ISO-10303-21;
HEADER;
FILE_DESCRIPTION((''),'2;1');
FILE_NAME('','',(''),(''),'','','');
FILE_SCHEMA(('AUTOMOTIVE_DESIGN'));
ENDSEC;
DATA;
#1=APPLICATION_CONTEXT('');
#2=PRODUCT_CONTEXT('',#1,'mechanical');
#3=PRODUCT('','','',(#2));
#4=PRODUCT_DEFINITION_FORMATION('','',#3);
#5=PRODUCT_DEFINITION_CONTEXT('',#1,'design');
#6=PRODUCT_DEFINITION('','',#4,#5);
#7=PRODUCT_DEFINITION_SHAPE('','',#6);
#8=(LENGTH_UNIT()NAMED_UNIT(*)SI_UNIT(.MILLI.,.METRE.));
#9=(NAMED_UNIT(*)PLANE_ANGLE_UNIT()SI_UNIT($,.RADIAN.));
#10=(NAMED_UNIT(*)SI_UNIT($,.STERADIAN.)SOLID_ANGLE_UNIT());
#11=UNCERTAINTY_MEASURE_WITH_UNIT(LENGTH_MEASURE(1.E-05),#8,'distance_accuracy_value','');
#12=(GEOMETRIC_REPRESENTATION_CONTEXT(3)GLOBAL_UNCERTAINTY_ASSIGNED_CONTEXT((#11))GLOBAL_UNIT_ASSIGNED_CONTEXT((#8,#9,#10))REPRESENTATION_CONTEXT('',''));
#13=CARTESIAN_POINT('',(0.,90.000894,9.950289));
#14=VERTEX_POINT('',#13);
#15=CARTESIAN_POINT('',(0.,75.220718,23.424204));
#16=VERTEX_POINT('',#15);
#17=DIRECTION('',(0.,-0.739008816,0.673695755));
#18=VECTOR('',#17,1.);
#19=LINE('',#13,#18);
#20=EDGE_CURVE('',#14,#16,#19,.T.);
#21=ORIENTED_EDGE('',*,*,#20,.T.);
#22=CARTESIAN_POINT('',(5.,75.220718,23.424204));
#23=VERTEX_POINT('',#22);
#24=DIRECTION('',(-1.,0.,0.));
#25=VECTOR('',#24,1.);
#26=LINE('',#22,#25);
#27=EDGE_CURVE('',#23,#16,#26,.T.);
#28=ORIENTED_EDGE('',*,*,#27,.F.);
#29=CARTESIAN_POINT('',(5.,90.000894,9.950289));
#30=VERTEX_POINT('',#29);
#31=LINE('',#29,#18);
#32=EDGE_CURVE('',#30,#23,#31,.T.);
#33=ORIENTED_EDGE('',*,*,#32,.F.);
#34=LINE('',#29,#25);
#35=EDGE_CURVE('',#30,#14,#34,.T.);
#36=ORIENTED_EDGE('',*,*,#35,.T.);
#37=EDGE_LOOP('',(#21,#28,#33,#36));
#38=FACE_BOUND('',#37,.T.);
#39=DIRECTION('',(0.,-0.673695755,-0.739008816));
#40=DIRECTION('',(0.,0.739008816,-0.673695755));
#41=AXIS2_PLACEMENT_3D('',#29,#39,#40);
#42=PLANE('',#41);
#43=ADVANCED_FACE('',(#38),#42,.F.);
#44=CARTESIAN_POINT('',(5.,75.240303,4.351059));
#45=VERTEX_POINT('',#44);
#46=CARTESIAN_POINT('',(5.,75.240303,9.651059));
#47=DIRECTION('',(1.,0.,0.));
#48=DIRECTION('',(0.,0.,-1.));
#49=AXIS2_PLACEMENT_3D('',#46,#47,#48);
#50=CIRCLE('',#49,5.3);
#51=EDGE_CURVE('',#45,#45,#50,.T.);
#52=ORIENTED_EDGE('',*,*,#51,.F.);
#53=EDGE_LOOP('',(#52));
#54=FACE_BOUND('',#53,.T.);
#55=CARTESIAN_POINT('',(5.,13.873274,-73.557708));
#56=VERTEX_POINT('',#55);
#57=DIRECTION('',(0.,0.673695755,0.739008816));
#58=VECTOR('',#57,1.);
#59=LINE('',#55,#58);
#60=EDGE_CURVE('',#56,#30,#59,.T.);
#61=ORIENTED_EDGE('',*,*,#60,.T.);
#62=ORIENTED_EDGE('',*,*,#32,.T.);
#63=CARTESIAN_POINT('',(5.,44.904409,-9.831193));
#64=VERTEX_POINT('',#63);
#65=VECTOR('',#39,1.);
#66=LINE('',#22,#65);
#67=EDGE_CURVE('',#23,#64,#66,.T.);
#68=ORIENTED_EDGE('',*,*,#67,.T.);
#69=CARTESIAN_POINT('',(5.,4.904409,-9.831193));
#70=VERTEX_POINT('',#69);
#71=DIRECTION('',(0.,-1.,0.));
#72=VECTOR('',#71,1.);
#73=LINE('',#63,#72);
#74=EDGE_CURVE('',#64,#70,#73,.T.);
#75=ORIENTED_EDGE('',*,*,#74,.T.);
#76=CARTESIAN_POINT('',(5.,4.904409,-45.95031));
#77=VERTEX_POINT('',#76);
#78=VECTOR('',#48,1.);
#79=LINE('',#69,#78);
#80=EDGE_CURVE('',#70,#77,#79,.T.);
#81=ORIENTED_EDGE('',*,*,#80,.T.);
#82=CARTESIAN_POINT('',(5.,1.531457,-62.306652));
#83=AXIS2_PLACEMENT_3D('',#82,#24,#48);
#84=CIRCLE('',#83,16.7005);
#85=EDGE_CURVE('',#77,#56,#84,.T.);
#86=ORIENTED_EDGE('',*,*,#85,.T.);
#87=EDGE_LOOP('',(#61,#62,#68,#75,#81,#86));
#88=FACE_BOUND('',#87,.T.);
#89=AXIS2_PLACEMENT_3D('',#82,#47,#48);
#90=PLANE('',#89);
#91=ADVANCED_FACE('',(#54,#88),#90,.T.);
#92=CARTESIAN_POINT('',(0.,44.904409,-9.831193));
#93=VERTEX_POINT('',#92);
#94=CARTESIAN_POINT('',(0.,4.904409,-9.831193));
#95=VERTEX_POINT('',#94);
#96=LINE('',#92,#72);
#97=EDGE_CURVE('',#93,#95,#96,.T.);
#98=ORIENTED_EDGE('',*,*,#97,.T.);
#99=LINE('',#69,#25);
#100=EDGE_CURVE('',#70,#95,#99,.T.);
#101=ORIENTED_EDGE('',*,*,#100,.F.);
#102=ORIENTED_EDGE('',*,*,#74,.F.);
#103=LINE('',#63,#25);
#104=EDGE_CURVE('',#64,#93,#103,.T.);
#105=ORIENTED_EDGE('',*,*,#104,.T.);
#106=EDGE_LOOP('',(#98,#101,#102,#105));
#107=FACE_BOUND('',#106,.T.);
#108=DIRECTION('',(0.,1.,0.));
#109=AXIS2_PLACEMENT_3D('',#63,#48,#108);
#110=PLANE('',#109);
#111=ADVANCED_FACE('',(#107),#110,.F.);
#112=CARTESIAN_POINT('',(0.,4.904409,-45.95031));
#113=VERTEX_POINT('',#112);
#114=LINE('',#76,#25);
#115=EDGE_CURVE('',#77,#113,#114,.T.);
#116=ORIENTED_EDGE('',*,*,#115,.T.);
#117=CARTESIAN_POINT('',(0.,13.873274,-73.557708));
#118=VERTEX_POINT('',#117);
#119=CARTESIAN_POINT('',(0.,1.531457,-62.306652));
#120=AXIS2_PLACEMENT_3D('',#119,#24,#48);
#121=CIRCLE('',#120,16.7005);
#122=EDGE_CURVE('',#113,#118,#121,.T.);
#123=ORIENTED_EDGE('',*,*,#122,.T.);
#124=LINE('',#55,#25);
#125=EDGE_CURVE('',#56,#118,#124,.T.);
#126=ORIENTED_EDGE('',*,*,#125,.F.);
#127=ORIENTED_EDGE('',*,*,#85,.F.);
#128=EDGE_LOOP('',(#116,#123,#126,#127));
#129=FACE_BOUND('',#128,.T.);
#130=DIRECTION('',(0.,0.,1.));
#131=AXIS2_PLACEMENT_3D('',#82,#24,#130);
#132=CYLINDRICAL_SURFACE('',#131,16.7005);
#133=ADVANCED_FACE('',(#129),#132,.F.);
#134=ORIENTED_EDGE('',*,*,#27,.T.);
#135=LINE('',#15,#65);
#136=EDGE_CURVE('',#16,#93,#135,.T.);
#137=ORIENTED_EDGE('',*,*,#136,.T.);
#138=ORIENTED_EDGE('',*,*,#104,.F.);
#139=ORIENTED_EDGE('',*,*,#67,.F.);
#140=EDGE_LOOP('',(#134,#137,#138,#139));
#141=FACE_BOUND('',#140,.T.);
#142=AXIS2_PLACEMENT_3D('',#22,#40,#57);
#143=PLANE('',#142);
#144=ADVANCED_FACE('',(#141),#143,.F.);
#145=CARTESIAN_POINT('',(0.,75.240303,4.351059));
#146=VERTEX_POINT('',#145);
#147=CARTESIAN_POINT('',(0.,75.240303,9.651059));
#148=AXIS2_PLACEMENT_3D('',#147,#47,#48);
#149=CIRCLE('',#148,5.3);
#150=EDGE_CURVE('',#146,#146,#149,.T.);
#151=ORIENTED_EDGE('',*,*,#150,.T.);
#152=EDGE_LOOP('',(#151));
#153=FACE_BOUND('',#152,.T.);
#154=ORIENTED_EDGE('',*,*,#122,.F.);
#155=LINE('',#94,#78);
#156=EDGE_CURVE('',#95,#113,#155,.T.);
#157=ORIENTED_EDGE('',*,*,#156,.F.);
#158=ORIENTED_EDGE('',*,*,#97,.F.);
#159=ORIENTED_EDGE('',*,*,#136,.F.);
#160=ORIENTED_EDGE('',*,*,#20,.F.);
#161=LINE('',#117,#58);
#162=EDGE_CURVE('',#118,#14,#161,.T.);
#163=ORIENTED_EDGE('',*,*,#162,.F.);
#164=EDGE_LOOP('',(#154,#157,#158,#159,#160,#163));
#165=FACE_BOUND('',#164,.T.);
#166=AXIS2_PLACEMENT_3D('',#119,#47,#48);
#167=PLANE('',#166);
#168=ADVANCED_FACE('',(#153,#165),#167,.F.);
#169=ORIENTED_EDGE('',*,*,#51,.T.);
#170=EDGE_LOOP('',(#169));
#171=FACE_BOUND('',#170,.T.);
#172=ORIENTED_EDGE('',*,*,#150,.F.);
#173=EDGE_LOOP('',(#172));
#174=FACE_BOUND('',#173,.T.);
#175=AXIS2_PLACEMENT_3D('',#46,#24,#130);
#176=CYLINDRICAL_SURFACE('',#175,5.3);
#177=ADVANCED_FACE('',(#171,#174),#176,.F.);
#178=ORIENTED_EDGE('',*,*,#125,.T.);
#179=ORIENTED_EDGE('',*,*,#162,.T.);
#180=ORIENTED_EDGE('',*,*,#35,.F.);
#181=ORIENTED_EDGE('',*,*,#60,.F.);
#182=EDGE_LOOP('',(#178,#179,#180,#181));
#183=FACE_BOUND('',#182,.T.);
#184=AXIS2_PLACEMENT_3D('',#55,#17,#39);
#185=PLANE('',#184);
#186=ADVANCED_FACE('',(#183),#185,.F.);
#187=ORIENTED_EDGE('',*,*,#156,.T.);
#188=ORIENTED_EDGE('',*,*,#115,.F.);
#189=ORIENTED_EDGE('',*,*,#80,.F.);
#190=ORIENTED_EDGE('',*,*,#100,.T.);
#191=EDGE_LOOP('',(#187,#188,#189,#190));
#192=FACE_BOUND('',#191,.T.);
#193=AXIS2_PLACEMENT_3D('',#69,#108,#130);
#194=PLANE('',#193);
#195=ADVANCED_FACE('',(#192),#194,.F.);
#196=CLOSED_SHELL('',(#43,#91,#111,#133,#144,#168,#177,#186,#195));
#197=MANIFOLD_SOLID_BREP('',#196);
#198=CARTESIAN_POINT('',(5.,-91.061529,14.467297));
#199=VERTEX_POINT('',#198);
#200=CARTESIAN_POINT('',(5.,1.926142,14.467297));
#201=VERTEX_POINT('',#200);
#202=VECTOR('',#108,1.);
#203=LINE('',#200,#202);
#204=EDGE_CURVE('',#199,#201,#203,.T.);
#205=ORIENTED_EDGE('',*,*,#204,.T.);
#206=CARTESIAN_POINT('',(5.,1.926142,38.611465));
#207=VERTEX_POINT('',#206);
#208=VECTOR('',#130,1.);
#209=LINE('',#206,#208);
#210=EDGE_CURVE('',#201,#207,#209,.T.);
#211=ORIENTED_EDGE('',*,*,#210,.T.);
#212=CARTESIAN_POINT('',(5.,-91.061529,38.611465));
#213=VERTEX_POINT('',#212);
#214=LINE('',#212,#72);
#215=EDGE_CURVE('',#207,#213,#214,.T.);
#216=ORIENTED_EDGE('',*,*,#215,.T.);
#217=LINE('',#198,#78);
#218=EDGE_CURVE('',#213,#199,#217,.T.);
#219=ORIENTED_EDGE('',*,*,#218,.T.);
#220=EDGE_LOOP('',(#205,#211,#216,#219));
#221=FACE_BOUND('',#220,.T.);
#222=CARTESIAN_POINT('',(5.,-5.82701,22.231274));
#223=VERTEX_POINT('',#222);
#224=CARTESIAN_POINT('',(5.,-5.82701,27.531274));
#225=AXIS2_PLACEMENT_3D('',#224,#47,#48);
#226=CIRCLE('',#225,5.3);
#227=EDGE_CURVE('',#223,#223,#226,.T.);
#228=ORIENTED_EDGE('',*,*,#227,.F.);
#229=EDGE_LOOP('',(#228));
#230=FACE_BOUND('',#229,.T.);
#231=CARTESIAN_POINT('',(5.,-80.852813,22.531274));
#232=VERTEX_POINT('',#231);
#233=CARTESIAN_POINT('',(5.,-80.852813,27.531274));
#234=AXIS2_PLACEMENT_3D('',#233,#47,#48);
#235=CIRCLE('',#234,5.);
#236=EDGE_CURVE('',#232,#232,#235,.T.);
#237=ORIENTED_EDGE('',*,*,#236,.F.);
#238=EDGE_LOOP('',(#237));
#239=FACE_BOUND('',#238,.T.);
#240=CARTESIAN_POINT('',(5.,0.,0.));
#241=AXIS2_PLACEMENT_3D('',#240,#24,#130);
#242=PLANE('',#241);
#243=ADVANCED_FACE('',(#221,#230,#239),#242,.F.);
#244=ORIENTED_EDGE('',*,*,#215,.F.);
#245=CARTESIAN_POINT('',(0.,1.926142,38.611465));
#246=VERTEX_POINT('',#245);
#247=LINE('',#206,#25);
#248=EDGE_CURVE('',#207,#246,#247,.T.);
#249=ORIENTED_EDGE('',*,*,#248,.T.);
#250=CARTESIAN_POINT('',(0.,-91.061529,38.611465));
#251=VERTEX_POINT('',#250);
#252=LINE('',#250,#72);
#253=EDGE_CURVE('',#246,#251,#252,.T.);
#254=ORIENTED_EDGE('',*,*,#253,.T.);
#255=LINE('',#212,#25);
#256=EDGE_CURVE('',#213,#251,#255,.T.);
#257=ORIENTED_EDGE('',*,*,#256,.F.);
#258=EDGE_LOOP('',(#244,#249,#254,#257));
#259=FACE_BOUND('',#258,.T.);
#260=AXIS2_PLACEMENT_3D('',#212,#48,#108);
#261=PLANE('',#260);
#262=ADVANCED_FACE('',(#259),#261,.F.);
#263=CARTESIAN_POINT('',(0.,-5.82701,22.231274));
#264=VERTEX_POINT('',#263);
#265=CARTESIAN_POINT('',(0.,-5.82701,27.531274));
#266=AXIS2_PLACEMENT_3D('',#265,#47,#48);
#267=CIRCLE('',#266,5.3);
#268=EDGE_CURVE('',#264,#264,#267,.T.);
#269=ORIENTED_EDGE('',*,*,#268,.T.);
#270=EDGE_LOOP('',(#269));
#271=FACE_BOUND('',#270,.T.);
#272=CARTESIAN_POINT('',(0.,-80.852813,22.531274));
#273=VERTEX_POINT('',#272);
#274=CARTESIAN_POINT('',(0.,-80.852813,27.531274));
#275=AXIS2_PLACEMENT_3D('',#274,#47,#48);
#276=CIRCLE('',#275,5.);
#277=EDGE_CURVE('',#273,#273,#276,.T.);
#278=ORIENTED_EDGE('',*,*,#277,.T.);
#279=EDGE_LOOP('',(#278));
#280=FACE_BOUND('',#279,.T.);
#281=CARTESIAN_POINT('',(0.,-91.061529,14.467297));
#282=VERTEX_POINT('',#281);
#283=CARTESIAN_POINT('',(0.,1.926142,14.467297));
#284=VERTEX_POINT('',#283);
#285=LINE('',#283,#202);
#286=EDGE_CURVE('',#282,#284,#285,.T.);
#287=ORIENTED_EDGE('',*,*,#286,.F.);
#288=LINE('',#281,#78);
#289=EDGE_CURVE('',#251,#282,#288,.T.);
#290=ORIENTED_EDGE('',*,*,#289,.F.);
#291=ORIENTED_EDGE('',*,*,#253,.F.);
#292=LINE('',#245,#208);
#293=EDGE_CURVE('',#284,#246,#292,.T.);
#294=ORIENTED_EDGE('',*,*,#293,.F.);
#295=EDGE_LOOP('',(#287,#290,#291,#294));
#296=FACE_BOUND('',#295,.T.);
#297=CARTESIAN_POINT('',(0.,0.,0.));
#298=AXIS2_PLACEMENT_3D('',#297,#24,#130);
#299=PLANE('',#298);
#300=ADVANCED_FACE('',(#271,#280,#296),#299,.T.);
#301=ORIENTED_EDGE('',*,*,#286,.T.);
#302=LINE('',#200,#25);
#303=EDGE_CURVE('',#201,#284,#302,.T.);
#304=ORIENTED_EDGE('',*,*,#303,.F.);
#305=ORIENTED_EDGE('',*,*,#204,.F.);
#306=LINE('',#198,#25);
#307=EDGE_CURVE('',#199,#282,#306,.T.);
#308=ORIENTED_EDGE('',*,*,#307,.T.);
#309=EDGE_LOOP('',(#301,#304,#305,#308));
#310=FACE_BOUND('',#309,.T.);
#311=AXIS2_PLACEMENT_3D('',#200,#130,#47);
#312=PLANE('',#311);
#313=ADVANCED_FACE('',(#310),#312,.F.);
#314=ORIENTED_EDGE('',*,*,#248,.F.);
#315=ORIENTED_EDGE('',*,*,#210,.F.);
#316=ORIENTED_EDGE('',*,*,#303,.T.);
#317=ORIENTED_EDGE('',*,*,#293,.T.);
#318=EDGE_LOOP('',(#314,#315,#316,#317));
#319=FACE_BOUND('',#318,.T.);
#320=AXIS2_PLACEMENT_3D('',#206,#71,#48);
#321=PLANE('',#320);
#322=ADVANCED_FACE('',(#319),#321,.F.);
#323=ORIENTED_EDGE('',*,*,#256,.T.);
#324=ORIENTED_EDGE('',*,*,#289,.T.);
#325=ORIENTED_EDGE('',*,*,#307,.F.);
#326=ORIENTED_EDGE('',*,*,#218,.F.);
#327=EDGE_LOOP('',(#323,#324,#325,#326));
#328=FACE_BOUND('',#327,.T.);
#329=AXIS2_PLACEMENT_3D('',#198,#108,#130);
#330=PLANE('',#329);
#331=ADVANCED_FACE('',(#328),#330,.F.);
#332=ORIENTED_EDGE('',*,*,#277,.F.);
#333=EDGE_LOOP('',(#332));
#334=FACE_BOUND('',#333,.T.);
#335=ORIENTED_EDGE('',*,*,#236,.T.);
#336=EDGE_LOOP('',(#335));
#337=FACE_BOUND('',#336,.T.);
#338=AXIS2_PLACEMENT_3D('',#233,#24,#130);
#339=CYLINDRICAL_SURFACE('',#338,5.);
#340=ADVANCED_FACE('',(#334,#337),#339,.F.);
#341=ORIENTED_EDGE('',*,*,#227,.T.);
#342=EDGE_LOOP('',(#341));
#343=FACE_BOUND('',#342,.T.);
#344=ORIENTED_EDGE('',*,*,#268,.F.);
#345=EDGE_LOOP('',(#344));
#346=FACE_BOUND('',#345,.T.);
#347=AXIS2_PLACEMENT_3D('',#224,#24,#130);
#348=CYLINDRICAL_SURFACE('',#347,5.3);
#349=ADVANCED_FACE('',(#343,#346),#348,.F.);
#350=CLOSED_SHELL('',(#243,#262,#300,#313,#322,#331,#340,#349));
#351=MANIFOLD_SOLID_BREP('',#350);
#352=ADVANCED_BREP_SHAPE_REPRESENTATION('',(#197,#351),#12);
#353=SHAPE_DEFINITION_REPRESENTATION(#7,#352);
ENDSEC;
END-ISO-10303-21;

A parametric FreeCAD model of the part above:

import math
import FreeCAD as App
import Part
import Sketcher
from FreeCAD import Vector
Q = App.Units.Quantity


def add_polygon(sketch, points):
    """Adds a closed chain of lines whose ends are joined by coincident constraints."""
    first, n = sketch.GeometryCount, len(points)
    for a, b in zip(points, points[1:] + points[:1]):
        sketch.addGeometry(Part.LineSegment(App.Vector(*a, 0), App.Vector(*b, 0)), False)
    for i in range(n):
        sketch.addConstraint(Sketcher.Constraint("Coincident", first + i, 2, first + (i + 1) % n, 1))

doc = App.newDocument("Part")
body = doc.addObject("PartDesign::Body", "Body")

# Sketch on YZ plane
sketch1 = body.newObject("Sketcher::SketchObject", "Sketch")
sketch1.AttachmentSupport = (doc.getObject("YZ_Plane"), [""])
sketch1.MapMode = "FlatFace"
sketch1.addGeometry(Part.LineSegment(Vector(13.873274, -73.557708, 0), Vector(90.000894, 9.950289, 0)), False)
sketch1.addGeometry(Part.LineSegment(Vector(90.000894, 9.950289, 0), Vector(75.220718, 23.424204, 0)), False)
sketch1.addGeometry(Part.LineSegment(Vector(75.220718, 23.424204, 0), Vector(44.904409, -9.831193, 0)), False)
sketch1.addGeometry(Part.LineSegment(Vector(44.904409, -9.831193, 0), Vector(4.904409, -9.831193, 0)), False)
sketch1.addGeometry(Part.LineSegment(Vector(4.904409, -9.831193, 0), Vector(4.904409, -45.95031, 0)), False)
sketch1.addGeometry(Part.ArcOfCircle(Part.Circle(Vector(1.531457, -62.306652, 0), Vector(0, 0, 1), 16.7005), math.radians(-42.35295), math.radians(78.347986)), False)
sketch1.addGeometry(Part.Circle(Vector(75.240303, 9.651059, 0), Vector(0, 0, 1), 5.3), False)
sketch1.addConstraint(Sketcher.Constraint("Coincident", 0, 2, 1, 1))
sketch1.addConstraint(Sketcher.Constraint("Coincident", 1, 2, 2, 1))
sketch1.addConstraint(Sketcher.Constraint("Coincident", 2, 2, 3, 1))
sketch1.addConstraint(Sketcher.Constraint("Coincident", 3, 2, 4, 1))
sketch1.addConstraint(Sketcher.Constraint("Coincident", 4, 2, 5, 2))
sketch1.addConstraint(Sketcher.Constraint("Tangent", 5, 1, 0, 1))
sketch1.addConstraint(Sketcher.Constraint("Horizontal", 3))
sketch1.addConstraint(Sketcher.Constraint("Vertical", 4))
sketch1.addConstraint(Sketcher.Constraint("Perpendicular", 0, 1))
sketch1.addConstraint(Sketcher.Constraint("Perpendicular", 1, 2))
sketch1.addConstraint(Sketcher.Constraint("Diameter", 6, Q("10.6 mm")))
sketch1.addConstraint(Sketcher.Constraint("DistanceX", 3, 2, 3, 1, Q("40 mm")))
sketch1.addConstraint(Sketcher.Constraint("Distance", 0, Q("113 mm")))
sketch1.addConstraint(Sketcher.Constraint("Distance", 1, Q("20 mm")))
sketch1.addConstraint(Sketcher.Constraint("Distance", 2, Q("45 mm")))
sketch1.addConstraint(Sketcher.Constraint("Radius", 5, Q("16.7005 mm")))
sketch1.addConstraint(Sketcher.Constraint("DistanceY", 4, 2, 4, 1, Q("36.119117 mm")))
sketch1.addConstraint(Sketcher.Constraint("DistanceY", 5, 3, -1, 1, Q("62.306652 mm")))
sketch1.addConstraint(Sketcher.Constraint("DistanceY", -1, 1, 6, 3, Q("9.651059 mm")))
sketch1.addConstraint(Sketcher.Constraint("DistanceX", -1, 1, 1, 2, Q("75.220718 mm")))
sketch1.addConstraint(Sketcher.Constraint("DistanceX", 6, 3, 0, 2, Q("14.760591 mm")))
pad1 = body.newObject("PartDesign::Pad", "Pad")
pad1.Profile = sketch1
pad1.Length = 5
body2 = doc.addObject("PartDesign::Body", "Body001")

# Sketch on YZ plane
sketch2 = body2.newObject("Sketcher::SketchObject", "Sketch001")
sketch2.AttachmentSupport = (doc.getObject("YZ_Plane001"), [""])
sketch2.MapMode = "FlatFace"
add_polygon(sketch2, [(1.926142, 38.611465), (-91.061529, 38.611465), (-91.061529, 14.467297), (1.926142, 14.467297)])  # lines 0-3
sketch2.addGeometry(Part.Circle(Vector(-80.852813, 27.531274, 0), Vector(0, 0, 1), 5), False)  # 4
sketch2.addGeometry(Part.Circle(Vector(-5.82701, 27.531274, 0), Vector(0, 0, 1), 5.3), False)  # 5
sketch2.addConstraint(Sketcher.Constraint("Horizontal", 0))
sketch2.addConstraint(Sketcher.Constraint("Vertical", 1))
sketch2.addConstraint(Sketcher.Constraint("Horizontal", 2))
sketch2.addConstraint(Sketcher.Constraint("Vertical", 3))
sketch2.addConstraint(Sketcher.Constraint("Horizontal", 4, 3, 5, 3))
sketch2.addConstraint(Sketcher.Constraint("Diameter", 4, Q("10 mm")))
sketch2.addConstraint(Sketcher.Constraint("Diameter", 5, Q("10.6 mm")))
sketch2.addConstraint(Sketcher.Constraint("DistanceX", 0, 2, 0, 1, Q("92.987671 mm")))
sketch2.addConstraint(Sketcher.Constraint("DistanceY", 1, 2, 1, 1, Q("24.144167 mm")))
sketch2.addConstraint(Sketcher.Constraint("DistanceX", 5, 3, -1, 1, Q("5.82701 mm")))
sketch2.addConstraint(Sketcher.Constraint("DistanceX", 0, 2, -1, 1, Q("91.061529 mm")))
sketch2.addConstraint(Sketcher.Constraint("DistanceY", 4, 3, 0, 2, Q("11.08019 mm")))
sketch2.addConstraint(Sketcher.Constraint("DistanceX", 4, 3, -1, 1, Q("80.852813 mm")))
sketch2.addConstraint(Sketcher.Constraint("DistanceY", -1, 1, 4, 3, Q("27.531274 mm")))
pad2 = body2.newObject("PartDesign::Pad", "Pad001")
pad2.Profile = sketch2
pad2.Length = 5

doc.recompute()
